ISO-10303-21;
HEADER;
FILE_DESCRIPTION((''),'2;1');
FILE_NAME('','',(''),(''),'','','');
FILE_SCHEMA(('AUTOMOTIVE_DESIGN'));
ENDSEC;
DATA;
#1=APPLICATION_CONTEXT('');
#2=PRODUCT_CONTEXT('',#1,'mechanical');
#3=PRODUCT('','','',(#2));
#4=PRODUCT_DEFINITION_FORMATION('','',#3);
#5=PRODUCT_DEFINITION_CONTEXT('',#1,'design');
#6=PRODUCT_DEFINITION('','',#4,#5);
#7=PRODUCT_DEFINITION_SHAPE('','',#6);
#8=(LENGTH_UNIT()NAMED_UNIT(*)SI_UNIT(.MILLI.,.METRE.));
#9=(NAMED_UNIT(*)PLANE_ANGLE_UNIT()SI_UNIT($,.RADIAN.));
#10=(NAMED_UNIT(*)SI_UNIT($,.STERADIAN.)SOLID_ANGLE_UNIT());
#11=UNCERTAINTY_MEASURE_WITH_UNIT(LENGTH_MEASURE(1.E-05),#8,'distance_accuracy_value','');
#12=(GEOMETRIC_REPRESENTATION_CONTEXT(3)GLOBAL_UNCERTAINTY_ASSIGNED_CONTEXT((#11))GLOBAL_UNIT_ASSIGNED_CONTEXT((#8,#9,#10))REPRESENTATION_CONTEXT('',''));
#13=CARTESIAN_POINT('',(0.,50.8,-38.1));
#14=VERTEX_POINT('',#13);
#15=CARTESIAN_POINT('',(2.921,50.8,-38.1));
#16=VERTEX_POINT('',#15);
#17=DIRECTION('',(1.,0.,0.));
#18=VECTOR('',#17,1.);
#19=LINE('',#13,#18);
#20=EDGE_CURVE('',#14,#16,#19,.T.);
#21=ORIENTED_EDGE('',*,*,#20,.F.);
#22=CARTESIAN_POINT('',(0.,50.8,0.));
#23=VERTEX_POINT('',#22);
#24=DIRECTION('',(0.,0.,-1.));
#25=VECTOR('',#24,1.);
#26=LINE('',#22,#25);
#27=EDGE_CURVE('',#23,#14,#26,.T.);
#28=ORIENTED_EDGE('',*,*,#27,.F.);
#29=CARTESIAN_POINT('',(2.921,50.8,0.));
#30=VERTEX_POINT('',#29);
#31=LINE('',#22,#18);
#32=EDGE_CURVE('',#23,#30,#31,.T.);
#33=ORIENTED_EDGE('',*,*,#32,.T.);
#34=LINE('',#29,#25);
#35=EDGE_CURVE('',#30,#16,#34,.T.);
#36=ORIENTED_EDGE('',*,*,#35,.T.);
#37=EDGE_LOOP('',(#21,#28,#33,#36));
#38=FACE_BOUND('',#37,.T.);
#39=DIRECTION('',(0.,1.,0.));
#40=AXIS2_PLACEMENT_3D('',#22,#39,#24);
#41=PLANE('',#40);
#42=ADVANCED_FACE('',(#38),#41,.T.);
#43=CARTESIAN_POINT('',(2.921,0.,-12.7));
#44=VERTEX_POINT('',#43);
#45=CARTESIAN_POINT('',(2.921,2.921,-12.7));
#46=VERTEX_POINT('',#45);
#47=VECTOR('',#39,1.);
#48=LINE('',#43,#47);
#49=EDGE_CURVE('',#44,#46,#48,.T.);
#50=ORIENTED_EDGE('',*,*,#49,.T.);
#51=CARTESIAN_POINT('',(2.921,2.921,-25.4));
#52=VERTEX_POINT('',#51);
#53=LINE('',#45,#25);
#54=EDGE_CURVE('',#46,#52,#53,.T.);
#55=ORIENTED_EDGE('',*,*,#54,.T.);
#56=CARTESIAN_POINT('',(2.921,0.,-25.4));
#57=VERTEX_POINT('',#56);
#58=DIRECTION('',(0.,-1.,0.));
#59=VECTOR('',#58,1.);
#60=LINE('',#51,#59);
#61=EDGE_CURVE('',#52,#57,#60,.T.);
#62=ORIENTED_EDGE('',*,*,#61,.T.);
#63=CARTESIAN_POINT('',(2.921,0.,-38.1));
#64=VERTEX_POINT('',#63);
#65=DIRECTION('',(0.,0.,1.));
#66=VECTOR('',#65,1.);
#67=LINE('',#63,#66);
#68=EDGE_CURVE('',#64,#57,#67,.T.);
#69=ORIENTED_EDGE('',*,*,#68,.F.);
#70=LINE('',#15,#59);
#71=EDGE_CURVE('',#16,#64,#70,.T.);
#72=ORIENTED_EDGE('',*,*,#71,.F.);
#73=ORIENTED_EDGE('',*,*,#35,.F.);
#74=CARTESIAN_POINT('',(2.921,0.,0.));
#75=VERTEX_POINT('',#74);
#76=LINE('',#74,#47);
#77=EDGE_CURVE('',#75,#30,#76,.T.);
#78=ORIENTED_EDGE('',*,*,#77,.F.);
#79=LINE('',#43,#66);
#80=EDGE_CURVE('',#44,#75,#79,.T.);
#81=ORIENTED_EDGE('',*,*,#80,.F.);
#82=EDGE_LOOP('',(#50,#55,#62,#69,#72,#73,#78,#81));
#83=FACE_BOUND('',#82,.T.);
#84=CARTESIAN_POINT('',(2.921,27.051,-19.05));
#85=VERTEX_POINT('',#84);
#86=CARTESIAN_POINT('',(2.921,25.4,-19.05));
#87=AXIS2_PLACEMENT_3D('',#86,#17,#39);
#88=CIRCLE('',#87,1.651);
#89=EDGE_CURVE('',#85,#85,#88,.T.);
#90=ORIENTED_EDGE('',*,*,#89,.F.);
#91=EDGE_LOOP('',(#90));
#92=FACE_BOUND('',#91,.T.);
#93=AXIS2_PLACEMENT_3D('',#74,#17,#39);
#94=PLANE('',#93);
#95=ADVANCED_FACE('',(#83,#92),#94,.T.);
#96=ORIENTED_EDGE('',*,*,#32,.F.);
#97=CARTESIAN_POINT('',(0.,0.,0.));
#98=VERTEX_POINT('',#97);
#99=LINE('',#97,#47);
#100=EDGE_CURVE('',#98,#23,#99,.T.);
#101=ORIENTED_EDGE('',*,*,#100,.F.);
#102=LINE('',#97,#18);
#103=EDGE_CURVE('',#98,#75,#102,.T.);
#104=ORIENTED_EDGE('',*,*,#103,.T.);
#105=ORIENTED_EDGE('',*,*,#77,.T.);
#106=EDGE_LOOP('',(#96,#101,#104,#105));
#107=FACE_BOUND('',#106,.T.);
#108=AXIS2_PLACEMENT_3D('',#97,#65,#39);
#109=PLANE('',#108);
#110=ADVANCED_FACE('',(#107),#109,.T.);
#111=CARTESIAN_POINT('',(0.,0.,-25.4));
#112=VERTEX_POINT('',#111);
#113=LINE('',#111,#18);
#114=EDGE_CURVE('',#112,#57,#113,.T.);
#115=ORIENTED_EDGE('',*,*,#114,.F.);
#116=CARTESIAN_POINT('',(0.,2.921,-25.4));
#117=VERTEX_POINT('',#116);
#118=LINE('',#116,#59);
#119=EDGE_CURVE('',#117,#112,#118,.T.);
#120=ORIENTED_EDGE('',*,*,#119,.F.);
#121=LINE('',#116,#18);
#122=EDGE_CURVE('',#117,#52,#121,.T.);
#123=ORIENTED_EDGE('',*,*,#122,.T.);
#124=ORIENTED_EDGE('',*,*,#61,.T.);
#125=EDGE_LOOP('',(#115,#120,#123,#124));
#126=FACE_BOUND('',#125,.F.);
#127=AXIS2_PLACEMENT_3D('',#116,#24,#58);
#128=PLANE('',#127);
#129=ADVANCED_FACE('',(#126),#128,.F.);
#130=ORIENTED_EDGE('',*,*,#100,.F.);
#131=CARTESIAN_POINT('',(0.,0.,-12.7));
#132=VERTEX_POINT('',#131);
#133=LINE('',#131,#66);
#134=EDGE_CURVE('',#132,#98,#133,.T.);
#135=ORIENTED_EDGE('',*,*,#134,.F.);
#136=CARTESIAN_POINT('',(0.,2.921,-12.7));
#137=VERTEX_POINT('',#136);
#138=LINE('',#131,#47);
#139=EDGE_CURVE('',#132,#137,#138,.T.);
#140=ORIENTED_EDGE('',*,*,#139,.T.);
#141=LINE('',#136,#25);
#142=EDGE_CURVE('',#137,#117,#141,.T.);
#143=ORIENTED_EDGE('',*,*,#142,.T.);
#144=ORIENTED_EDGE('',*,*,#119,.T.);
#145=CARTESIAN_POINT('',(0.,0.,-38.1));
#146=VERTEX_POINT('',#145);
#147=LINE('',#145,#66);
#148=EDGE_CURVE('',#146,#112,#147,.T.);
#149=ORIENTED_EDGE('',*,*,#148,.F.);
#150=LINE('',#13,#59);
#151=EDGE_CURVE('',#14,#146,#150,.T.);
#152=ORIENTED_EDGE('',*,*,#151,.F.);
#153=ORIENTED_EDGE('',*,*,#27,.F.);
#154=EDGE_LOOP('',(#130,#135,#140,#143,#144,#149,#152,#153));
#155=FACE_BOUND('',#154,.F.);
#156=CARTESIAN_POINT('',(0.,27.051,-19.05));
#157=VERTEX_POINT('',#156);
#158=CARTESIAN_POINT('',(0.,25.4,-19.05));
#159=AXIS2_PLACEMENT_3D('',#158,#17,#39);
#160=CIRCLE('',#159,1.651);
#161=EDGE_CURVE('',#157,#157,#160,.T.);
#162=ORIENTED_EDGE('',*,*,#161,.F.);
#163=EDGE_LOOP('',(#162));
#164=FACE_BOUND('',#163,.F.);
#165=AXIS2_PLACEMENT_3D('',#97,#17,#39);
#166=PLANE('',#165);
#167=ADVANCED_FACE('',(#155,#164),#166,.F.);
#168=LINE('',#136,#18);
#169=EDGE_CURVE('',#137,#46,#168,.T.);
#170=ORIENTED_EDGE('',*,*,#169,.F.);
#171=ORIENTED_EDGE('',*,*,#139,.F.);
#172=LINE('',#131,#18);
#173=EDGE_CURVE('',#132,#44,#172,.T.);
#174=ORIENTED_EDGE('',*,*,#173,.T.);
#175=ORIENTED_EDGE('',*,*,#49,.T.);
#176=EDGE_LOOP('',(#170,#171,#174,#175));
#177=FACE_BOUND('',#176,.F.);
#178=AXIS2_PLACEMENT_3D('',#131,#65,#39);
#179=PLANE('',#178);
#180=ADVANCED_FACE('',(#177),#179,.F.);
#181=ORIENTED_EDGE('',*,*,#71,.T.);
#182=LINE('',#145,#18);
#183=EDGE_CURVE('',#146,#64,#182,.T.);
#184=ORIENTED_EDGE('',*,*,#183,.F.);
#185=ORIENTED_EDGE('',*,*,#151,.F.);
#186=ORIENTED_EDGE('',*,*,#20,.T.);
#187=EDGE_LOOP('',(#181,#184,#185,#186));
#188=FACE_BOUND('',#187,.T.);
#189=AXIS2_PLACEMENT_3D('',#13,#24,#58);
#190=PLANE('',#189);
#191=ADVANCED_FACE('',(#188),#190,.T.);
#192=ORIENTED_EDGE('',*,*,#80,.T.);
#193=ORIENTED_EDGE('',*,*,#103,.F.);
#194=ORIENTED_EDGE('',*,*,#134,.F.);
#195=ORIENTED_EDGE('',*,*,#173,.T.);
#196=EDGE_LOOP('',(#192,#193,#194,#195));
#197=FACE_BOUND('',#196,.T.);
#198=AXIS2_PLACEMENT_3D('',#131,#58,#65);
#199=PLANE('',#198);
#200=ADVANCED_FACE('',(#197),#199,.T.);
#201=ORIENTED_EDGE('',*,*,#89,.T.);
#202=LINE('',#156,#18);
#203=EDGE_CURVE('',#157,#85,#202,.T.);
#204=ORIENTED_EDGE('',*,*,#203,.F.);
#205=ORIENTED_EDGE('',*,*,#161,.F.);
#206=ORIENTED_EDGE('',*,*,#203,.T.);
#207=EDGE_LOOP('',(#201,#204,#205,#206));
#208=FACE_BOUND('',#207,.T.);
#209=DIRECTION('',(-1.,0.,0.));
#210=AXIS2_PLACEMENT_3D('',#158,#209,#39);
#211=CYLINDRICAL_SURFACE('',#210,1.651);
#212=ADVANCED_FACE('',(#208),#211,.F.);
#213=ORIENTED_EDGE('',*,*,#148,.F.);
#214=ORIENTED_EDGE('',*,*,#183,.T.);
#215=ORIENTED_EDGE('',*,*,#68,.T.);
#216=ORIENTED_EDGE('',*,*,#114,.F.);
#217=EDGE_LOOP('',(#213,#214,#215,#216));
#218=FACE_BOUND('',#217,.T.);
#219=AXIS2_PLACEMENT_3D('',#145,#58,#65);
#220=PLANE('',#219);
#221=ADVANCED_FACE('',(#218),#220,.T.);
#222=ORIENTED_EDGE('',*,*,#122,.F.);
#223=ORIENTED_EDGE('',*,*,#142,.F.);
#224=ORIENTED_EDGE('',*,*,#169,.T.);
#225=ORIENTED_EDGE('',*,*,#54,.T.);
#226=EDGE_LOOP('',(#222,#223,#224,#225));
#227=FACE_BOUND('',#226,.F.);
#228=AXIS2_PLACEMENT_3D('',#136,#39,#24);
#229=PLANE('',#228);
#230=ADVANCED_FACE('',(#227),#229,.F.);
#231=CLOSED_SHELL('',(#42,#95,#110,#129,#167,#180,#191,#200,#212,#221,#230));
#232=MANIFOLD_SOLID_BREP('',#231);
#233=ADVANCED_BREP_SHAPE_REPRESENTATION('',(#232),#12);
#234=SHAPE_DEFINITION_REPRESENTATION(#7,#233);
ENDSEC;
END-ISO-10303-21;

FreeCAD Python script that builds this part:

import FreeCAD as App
import Part
import Sketcher
Q = App.Units.Quantity


def add_polygon(sketch, points):
    """Adds a closed chain of lines whose ends are joined by coincident constraints."""
    first, n = sketch.GeometryCount, len(points)
    for a, b in zip(points, points[1:] + points[:1]):
        sketch.addGeometry(Part.LineSegment(App.Vector(*a, 0), App.Vector(*b, 0)), False)
    for i in range(n):
        sketch.addConstraint(Sketcher.Constraint("Coincident", first + i, 2, first + (i + 1) % n, 1))

doc = App.newDocument("Part")
body = doc.addObject("PartDesign::Body", "Body")

sketch1 = body.newObject("Sketcher::SketchObject", "Sketch")
sketch1.AttachmentSupport = (doc.getObject("YZ_Plane"), [""])
sketch1.MapMode = "FlatFace"
add_polygon(sketch1, [(50.8, 0), (0, 0), (0, -12.7), (2.9, -12.7), (2.9, -25.4), (0, -25.4), (0, -38.1), (50.8, -38.1)])
sketch1.addGeometry(Part.Circle(App.Vector(25.4, -19.1, 0), App.Vector(0, 0, 1), 1.7), False)
sketch1.addConstraint([
    Sketcher.Constraint("Horizontal", 0),
    Sketcher.Constraint("Vertical", 1),
    Sketcher.Constraint("Horizontal", 2),
    Sketcher.Constraint("Vertical", 3),
    Sketcher.Constraint("Horizontal", 4),
    Sketcher.Constraint("Vertical", 5),
    Sketcher.Constraint("Horizontal", 6),
    Sketcher.Constraint("Vertical", 7),
    Sketcher.Constraint("Coincident", 0, 2, -1, 1),
    Sketcher.Constraint("PointOnObject", 4, 2, -2),
    Sketcher.Constraint("Equal", 1, 3),
    Sketcher.Constraint("Equal", 3, 5),
    Sketcher.Constraint("Diameter", 8, Q("0.13 in")),
    Sketcher.Constraint("DistanceX", 0, 2, 0, 1, Q("2 in")),
    Sketcher.Constraint("DistanceY", 1, 2, 1, 1, Q("0.5 in")),
    Sketcher.Constraint("DistanceX", 2, 1, 2, 2, Q("0.115 in")),
    Sketcher.Constraint("DistanceX", -1, 1, 8, 3, Q("1 in")),
    Sketcher.Constraint("DistanceY", 8, 3, -1, 1, Q("0.75 in")),
])
pad1 = body.newObject("PartDesign::Pad", "Pad")
pad1.Profile = sketch1
pad1.Length = Q("0.115 in")

doc.recompute()
